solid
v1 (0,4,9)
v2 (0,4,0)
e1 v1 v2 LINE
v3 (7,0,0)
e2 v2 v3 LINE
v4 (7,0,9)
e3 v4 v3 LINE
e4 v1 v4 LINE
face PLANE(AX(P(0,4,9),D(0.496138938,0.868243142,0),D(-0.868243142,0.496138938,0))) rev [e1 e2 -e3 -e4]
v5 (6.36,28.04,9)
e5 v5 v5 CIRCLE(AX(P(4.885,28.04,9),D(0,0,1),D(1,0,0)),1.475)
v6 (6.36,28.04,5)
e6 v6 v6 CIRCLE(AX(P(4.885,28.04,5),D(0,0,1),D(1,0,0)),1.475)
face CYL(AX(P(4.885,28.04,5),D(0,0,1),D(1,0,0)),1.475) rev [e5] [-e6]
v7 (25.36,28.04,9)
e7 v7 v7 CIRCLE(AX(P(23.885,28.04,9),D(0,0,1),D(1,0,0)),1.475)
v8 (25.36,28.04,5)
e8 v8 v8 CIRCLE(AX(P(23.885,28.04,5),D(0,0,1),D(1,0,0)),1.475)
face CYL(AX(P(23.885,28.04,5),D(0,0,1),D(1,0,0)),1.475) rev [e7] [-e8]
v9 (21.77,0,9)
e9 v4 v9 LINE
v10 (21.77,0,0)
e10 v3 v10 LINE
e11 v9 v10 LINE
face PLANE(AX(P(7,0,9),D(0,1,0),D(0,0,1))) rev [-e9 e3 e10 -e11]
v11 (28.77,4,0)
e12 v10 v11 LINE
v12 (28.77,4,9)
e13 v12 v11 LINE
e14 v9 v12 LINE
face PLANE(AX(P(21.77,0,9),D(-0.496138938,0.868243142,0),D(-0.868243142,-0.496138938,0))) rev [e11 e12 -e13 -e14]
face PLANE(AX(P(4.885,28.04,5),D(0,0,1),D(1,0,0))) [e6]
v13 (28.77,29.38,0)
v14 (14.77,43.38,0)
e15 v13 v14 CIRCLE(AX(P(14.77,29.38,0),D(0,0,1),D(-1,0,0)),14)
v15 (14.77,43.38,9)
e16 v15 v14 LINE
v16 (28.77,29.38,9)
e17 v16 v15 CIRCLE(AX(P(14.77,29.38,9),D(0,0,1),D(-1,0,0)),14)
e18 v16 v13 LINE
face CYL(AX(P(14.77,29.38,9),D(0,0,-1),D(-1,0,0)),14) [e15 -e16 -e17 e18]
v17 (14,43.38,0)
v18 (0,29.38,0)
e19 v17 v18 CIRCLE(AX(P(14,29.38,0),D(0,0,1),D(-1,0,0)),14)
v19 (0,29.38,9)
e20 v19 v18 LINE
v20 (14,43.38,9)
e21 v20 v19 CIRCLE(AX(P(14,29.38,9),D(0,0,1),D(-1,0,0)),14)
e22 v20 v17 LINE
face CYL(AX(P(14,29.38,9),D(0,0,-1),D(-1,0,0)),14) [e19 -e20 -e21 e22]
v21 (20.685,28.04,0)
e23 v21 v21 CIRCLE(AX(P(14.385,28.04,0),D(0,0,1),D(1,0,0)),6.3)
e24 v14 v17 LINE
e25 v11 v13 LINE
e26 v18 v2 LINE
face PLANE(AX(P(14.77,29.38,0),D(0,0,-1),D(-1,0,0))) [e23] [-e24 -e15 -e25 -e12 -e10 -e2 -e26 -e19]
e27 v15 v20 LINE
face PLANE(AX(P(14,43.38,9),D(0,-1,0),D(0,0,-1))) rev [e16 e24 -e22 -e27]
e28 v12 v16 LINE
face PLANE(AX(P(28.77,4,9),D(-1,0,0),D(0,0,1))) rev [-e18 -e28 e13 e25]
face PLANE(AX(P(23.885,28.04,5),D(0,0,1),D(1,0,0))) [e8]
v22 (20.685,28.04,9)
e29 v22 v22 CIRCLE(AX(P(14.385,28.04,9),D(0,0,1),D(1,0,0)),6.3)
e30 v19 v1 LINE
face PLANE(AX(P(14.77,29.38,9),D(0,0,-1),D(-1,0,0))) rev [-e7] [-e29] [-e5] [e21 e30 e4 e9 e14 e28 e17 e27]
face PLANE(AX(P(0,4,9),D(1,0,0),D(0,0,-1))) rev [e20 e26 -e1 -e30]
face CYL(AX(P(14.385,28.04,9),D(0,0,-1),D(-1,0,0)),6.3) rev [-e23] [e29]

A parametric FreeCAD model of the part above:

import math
import FreeCAD as App
import Part
import Sketcher

doc = App.newDocument("Part")
params = doc.addObject("Spreadsheet::Sheet", "Params")
for row, (alias, value) in enumerate([
    ("sketch1_radius", "14 mm"),
    ("sketch1_diameter", "12.6 mm"),
    ("sketch1_width", "14.77 mm"),
    ("sketch1_height", "25.38 mm"),
    ("pad1_length", "9 mm"),
    ("sketch2_diameter", "2.95 mm"),
    ("pocket1_length", "4 mm"),
], start=1):
    params.set(f"A{row}", alias)
    params.set(f"B{row}", "=" + value)
    params.setAlias(f"B{row}", alias)

body = doc.addObject("PartDesign::Body", "Body")

sketch1 = doc.addObject("Sketcher::SketchObject", "Sketch")
body.addObject(sketch1)
sketch1.AttachmentSupport = (doc.XY_Plane, [""])
sketch1.MapMode = "FlatFace"
sketch1.addGeometry([
    Part.LineSegment(App.Vector(0, 4, 0), App.Vector(7, 0, 0)),
    Part.LineSegment(App.Vector(7, 0, 0), App.Vector(21.8, 0, 0)),
    Part.LineSegment(App.Vector(21.8, 0, 0), App.Vector(28.8, 4, 0)),
    Part.LineSegment(App.Vector(28.8, 4, 0), App.Vector(28.8, 29.4, 0)),
    Part.ArcOfCircle(Part.Circle(App.Vector(14.8, 29.4, 0), App.Vector(0, 0, 1), 14), math.radians(0), math.radians(90)),
    Part.LineSegment(App.Vector(14.8, 43.4, 0), App.Vector(14, 43.4, 0)),
    Part.ArcOfCircle(Part.Circle(App.Vector(14, 29.4, 0), App.Vector(0, 0, 1), 14), math.radians(90), math.radians(180)),
    Part.LineSegment(App.Vector(0, 29.4, 0), App.Vector(0, 4, 0)),
    Part.Circle(App.Vector(14.4, 28, 0), App.Vector(0, 0, 1), 6.3),
], False)
sketch1.addConstraint([
    Sketcher.Constraint("Coincident", 0, 2, 1, 1),
    Sketcher.Constraint("Coincident", 1, 2, 2, 1),
    Sketcher.Constraint("Coincident", 2, 2, 3, 1),
    Sketcher.Constraint("Tangent", 3, 2, 4, 1),
    Sketcher.Constraint("Tangent", 4, 2, 5, 1),
    Sketcher.Constraint("Tangent", 5, 2, 6, 1),
    Sketcher.Constraint("Tangent", 6, 2, 7, 1),
    Sketcher.Constraint("Coincident", 7, 2, 0, 1),
    Sketcher.Constraint("Horizontal", 1),
    Sketcher.Constraint("Vertical", 3),
    Sketcher.Constraint("Horizontal", 5),
    Sketcher.Constraint("Vertical", 7),
    Sketcher.Constraint("Equal", 4, 6),
    Sketcher.Constraint("PointOnObject", 0, 2, -1),
    Sketcher.Constraint("PointOnObject", 6, 2, -2),
    Sketcher.Constraint("Horizontal", 2, 2, 7, 2),
    Sketcher.Constraint("Equal", 0, 2),
    Sketcher.Constraint("Radius", 4, 14.0),
    Sketcher.Constraint("Diameter", 8, 12.6),
    Sketcher.Constraint("DistanceX", -1, 1, 0, 2, 7.0),
    Sketcher.Constraint("DistanceY", -1, 1, 2, 2, 4.0),
    Sketcher.Constraint("DistanceX", 1, 1, 1, 2, 14.77),
    Sketcher.Constraint("DistanceY", 3, 1, 3, 2, 25.38),
    Sketcher.Constraint("DistanceY", -1, 1, 8, 3, 28.04),
    Sketcher.Constraint("DistanceX", -1, 1, 8, 3, 14.385),
])
sketch1.setExpression("Constraints[17]", "Params.sketch1_radius")
sketch1.setExpression("Constraints[18]", "Params.sketch1_diameter")
sketch1.setExpression("Constraints[21]", "Params.sketch1_width")
sketch1.setExpression("Constraints[22]", "Params.sketch1_height")
pad1 = doc.addObject("PartDesign::Pad", "Pad")
body.addObject(pad1)
pad1.Profile = sketch1
pad1.setExpression("Length", "Params.pad1_length")

sketch2 = doc.addObject("Sketcher::SketchObject", "Sketch001")
body.addObject(sketch2)
sketch2.AttachmentSupport = (doc.XY_Plane, [""])
sketch2.MapMode = "FlatFace"
sketch2.AttachmentOffset = App.Placement(App.Vector(0, 0, 9), App.Rotation())
sketch2.addGeometry([
    Part.Circle(App.Vector(4.9, 28, 0), App.Vector(0, 0, 1), 1.5),
    Part.Circle(App.Vector(23.9, 28, 0), App.Vector(0, 0, 1), 1.5),
], False)
sketch2.addConstraint([
    Sketcher.Constraint("Equal", 0, 1),
    Sketcher.Constraint("Horizontal", 0, 3, 1, 3),
    Sketcher.Constraint("Diameter", 0, 2.95),
    Sketcher.Constraint("DistanceX", 0, 3, 1, 3, 19.0),
    Sketcher.Constraint("DistanceY", -1, 1, 0, 3, 28.04),
    Sketcher.Constraint("DistanceX", -1, 1, 0, 3, 4.885),
])
sketch2.setExpression("Constraints[2]", "Params.sketch2_diameter")
pocket1 = doc.addObject("PartDesign::Pocket", "Pocket")
body.addObject(pocket1)
pocket1.Profile = sketch2
pocket1.setExpression("Length", "Params.pocket1_length")

doc.recompute()
